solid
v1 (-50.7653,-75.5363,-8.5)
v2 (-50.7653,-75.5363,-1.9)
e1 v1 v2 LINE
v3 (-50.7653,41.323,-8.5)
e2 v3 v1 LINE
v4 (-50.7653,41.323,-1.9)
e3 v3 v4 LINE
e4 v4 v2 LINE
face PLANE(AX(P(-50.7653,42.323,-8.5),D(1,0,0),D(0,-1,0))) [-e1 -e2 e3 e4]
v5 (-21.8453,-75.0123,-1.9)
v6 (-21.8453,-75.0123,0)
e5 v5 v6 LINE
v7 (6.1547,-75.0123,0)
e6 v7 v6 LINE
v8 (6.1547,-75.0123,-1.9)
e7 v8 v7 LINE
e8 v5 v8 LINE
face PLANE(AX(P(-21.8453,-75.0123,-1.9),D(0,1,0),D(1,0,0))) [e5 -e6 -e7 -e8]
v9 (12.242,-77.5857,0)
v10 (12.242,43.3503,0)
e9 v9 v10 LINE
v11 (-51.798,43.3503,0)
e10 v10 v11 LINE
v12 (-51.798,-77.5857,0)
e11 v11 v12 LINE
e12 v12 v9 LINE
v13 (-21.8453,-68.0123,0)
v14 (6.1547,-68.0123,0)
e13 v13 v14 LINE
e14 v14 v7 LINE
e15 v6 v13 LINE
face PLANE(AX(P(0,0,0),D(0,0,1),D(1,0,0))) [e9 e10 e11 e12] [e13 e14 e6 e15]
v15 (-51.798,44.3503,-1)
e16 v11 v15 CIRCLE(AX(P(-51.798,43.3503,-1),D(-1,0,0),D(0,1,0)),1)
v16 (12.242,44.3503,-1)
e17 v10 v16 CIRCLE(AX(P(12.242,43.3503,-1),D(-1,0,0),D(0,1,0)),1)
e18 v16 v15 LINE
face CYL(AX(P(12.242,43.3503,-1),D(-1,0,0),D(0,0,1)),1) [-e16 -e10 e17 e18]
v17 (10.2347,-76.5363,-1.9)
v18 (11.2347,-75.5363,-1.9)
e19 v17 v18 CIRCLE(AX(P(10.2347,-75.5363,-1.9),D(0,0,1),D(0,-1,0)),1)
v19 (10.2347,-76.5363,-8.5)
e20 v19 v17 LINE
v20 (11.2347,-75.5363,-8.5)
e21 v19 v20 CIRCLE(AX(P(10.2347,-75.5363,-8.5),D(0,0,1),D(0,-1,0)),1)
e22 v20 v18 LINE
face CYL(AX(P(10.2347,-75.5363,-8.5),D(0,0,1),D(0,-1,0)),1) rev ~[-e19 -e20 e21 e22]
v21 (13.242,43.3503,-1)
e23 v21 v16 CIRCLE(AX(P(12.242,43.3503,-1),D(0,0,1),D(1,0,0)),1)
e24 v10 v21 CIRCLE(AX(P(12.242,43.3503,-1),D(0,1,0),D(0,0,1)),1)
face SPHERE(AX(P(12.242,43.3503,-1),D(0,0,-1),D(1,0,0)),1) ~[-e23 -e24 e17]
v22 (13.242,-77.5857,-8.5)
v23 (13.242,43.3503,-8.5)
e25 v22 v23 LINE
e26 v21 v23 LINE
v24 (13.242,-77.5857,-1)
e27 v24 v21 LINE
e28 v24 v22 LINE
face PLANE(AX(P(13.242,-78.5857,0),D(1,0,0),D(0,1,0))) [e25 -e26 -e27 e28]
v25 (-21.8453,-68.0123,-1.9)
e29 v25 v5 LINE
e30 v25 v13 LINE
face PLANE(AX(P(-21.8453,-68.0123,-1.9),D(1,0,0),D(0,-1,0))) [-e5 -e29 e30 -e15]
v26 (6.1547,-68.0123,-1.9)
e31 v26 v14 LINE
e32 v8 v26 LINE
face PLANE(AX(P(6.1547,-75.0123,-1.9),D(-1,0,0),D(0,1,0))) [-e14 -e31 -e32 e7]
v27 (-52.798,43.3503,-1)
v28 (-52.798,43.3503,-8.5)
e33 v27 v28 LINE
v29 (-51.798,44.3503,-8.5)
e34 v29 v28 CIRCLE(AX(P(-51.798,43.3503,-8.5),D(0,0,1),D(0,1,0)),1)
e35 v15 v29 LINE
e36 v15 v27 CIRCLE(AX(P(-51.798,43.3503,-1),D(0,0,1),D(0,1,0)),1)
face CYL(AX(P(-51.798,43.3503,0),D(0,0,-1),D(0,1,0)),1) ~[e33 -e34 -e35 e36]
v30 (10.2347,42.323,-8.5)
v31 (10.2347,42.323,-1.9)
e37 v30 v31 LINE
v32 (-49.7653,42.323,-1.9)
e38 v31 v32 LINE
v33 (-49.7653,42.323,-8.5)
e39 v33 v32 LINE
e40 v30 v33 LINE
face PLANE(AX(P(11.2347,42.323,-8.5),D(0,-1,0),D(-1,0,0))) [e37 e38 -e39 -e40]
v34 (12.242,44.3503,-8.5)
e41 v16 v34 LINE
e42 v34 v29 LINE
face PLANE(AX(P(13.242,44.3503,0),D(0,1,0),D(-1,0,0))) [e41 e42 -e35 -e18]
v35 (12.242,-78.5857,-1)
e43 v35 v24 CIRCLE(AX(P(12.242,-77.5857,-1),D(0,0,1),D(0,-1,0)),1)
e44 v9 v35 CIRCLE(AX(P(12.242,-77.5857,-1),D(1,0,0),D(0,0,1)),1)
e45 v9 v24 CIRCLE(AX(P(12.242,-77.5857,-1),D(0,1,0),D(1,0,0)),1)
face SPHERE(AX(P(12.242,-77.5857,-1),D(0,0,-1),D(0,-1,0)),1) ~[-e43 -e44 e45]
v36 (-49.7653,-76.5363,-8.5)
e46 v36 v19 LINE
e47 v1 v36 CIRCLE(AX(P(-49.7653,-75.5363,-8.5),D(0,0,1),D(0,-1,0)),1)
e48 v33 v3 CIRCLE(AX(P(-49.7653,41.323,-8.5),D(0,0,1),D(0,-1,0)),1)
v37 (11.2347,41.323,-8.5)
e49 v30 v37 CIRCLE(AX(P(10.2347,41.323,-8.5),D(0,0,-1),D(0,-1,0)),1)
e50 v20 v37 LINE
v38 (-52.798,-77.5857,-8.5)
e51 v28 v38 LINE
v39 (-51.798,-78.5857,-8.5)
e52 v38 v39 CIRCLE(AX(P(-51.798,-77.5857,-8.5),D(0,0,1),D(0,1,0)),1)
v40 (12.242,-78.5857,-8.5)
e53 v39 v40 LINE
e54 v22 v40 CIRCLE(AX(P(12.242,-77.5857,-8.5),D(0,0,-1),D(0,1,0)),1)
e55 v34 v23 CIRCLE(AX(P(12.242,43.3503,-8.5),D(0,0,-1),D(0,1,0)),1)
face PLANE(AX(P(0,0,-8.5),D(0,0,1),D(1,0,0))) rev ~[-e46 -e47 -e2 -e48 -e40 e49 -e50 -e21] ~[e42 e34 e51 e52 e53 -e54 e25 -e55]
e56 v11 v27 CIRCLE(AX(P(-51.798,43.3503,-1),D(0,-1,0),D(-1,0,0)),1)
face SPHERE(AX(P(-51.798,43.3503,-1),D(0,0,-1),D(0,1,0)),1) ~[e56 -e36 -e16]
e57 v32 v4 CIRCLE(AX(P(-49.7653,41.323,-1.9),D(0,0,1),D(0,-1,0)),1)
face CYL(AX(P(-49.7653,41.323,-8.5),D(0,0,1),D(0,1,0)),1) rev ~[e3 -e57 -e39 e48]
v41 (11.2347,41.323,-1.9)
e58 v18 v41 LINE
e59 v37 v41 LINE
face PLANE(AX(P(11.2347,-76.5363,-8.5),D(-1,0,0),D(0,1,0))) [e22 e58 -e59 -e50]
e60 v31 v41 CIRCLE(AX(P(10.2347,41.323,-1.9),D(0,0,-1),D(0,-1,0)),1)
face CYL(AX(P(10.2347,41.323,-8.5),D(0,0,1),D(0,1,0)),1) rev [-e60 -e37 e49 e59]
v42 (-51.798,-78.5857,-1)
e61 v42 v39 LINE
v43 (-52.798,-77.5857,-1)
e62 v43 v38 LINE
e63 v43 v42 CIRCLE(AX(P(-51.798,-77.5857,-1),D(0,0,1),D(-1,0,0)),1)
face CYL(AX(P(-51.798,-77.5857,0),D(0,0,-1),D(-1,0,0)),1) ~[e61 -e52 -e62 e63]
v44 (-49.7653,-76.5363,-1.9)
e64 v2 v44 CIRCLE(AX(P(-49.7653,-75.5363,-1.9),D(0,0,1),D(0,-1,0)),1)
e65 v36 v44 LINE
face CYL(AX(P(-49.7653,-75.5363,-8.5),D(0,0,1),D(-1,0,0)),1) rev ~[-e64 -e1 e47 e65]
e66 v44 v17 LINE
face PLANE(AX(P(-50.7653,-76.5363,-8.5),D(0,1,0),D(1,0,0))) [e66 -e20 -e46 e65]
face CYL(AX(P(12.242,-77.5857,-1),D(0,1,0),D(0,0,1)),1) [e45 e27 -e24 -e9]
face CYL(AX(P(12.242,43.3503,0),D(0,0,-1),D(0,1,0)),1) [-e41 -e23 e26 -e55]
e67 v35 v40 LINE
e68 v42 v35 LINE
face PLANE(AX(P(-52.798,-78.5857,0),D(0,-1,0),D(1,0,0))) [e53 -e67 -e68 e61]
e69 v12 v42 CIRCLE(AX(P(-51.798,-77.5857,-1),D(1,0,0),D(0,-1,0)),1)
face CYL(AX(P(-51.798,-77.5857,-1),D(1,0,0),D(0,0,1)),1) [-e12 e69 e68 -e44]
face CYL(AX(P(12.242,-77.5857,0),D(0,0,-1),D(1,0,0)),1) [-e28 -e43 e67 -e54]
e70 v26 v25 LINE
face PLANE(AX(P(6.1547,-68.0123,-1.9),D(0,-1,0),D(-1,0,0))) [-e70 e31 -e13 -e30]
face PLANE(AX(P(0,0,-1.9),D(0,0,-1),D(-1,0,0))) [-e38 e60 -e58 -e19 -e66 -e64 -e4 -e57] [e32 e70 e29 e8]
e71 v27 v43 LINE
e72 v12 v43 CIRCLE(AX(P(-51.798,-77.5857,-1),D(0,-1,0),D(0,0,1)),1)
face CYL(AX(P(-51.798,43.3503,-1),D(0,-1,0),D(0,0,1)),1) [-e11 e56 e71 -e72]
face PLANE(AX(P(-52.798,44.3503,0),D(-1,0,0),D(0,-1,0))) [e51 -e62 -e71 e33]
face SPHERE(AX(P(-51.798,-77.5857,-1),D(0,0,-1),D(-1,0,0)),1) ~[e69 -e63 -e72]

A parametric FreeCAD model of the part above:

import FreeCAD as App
import Part
import Sketcher
Q = App.Units.Quantity


def edges_at(feature, points):
    """Names of the edges that pass closest to the given points."""
    edges = feature.Shape.Edges
    near = lambda p: min(range(len(edges)), key=lambda i: edges[i].distToShape(Part.Vertex(*p))[0])
    return sorted({f"Edge{near(p) + 1}" for p in points})

doc = App.newDocument("Part")
body = doc.addObject("PartDesign::Body", "Body")

sketch1 = body.newObject("Sketcher::SketchObject", "Sketch")
sketch1.AttachmentSupport = (doc.getObject("XY_Plane"), [""])
sketch1.MapMode = "FlatFace"
sketch1.addGeometry(Part.LineSegment(App.Vector(13, 44, 0), App.Vector(-53, 44, 0)), False)
sketch1.addGeometry(Part.LineSegment(App.Vector(-53, 44, 0), App.Vector(-53, -79, 0)), False)
sketch1.addGeometry(Part.LineSegment(App.Vector(-53, -79, 0), App.Vector(13, -79, 0)), False)
sketch1.addGeometry(Part.LineSegment(App.Vector(13, -79, 0), App.Vector(13, 44, 0)), False)
sketch1.addConstraint(Sketcher.Constraint("Coincident", 0, 2, 1, 1))
sketch1.addConstraint(Sketcher.Constraint("Coincident", 1, 2, 2, 1))
sketch1.addConstraint(Sketcher.Constraint("Coincident", 2, 2, 3, 1))
sketch1.addConstraint(Sketcher.Constraint("Coincident", 3, 2, 0, 1))
sketch1.addConstraint(Sketcher.Constraint("Horizontal", 0))
sketch1.addConstraint(Sketcher.Constraint("Vertical", 1))
sketch1.addConstraint(Sketcher.Constraint("Horizontal", 2))
sketch1.addConstraint(Sketcher.Constraint("Vertical", 3))
sketch1.addConstraint(Sketcher.Constraint("DistanceX", 0, 2, 0, 1, Q("66.04 mm")))
sketch1.addConstraint(Sketcher.Constraint("DistanceY", 1, 2, 1, 1, Q("122.936 mm")))
sketch1.addConstraint(Sketcher.Constraint("DistanceX", 0, 2, -1, 1, Q("52.798 mm")))
sketch1.addConstraint(Sketcher.Constraint("DistanceY", -1, 1, 0, 2, Q("44.3503 mm")))
pad1 = body.newObject("PartDesign::Pad", "Pad")
pad1.Profile = sketch1
pad1.Length = 8.5
pad1.Reversed = True

sketch2 = body.newObject("Sketcher::SketchObject", "Sketch001")
sketch2.AttachmentSupport = (doc.getObject("XY_Plane"), [""])
sketch2.MapMode = "FlatFace"
sketch2.AttachmentOffset = App.Placement(App.Vector(0, 0, -8.5), App.Rotation())
sketch2.addGeometry(Part.LineSegment(App.Vector(-51, 42, 0), App.Vector(11, 42, 0)), False)
sketch2.addGeometry(Part.LineSegment(App.Vector(11, 42, 0), App.Vector(11, -77, 0)), False)
sketch2.addGeometry(Part.LineSegment(App.Vector(11, -77, 0), App.Vector(-51, -77, 0)), False)
sketch2.addGeometry(Part.LineSegment(App.Vector(-51, -77, 0), App.Vector(-51, 42, 0)), False)
sketch2.addConstraint(Sketcher.Constraint("Coincident", 0, 2, 1, 1))
sketch2.addConstraint(Sketcher.Constraint("Coincident", 1, 2, 2, 1))
sketch2.addConstraint(Sketcher.Constraint("Coincident", 2, 2, 3, 1))
sketch2.addConstraint(Sketcher.Constraint("Coincident", 3, 2, 0, 1))
sketch2.addConstraint(Sketcher.Constraint("Horizontal", 0))
sketch2.addConstraint(Sketcher.Constraint("Vertical", 1))
sketch2.addConstraint(Sketcher.Constraint("Horizontal", 2))
sketch2.addConstraint(Sketcher.Constraint("Vertical", 3))
sketch2.addConstraint(Sketcher.Constraint("DistanceX", 0, 1, 0, 2, Q("62 mm")))
sketch2.addConstraint(Sketcher.Constraint("DistanceY", 1, 2, 1, 1, Q("118.8593 mm")))
sketch2.addConstraint(Sketcher.Constraint("DistanceY", -1, 1, 0, 2, Q("42.323 mm")))
sketch2.addConstraint(Sketcher.Constraint("DistanceX", -1, 1, 0, 2, Q("11.2347 mm")))
pocket1 = body.newObject("PartDesign::Pocket", "Pocket")
pocket1.Profile = sketch2
pocket1.Length = 6.6
pocket1.Reversed = True

sketch3 = body.newObject("Sketcher::SketchObject", "Sketch002")
sketch3.AttachmentSupport = (doc.getObject("XY_Plane"), [""])
sketch3.MapMode = "FlatFace"
sketch3.AttachmentOffset = App.Placement(App.Vector(0, 0, -1.9), App.Rotation())
sketch3.addGeometry(Part.LineSegment(App.Vector(-22, -68, 0), App.Vector(6, -68, 0)), False)
sketch3.addGeometry(Part.LineSegment(App.Vector(6, -68, 0), App.Vector(6, -75, 0)), False)
sketch3.addGeometry(Part.LineSegment(App.Vector(6, -75, 0), App.Vector(-22, -75, 0)), False)
sketch3.addGeometry(Part.LineSegment(App.Vector(-22, -75, 0), App.Vector(-22, -68, 0)), False)
sketch3.addConstraint(Sketcher.Constraint("Coincident", 0, 2, 1, 1))
sketch3.addConstraint(Sketcher.Constraint("Coincident", 1, 2, 2, 1))
sketch3.addConstraint(Sketcher.Constraint("Coincident", 2, 2, 3, 1))
sketch3.addConstraint(Sketcher.Constraint("Coincident", 3, 2, 0, 1))
sketch3.addConstraint(Sketcher.Constraint("Horizontal", 0))
sketch3.addConstraint(Sketcher.Constraint("Vertical", 1))
sketch3.addConstraint(Sketcher.Constraint("Horizontal", 2))
sketch3.addConstraint(Sketcher.Constraint("Vertical", 3))
sketch3.addConstraint(Sketcher.Constraint("DistanceX", 0, 1, 0, 2, Q("28 mm")))
sketch3.addConstraint(Sketcher.Constraint("DistanceY", 1, 2, 1, 1, Q("7 mm")))
sketch3.addConstraint(Sketcher.Constraint("DistanceX", -1, 1, 0, 2, Q("6.1547 mm")))
sketch3.addConstraint(Sketcher.Constraint("DistanceY", 0, 2, -1, 1, Q("68.0123 mm")))
pocket2 = body.newObject("PartDesign::Pocket", "Pocket001")
pocket2.Profile = sketch3
pocket2.Length = 2.76
pocket2.Reversed = True
doc.recompute()

fillet = body.newObject("PartDesign::Fillet", "Fillet")
fillet.Base = (pocket2, edges_at(pocket2, [
    (11.235, 42.323, -5.2),
    (13.242, 44.35, -4.25),
    (-52.798, -78.586, -4.25),
    (-50.765, -76.536, -5.2),
    (-50.765, 42.323, -5.2),
    (-52.798, 44.35, -4.25),
    (13.242, -78.586, -4.25),
    (11.235, -76.536, -5.2),
]))
fillet.Radius = 1
doc.recompute()

fillet2 = body.newObject("PartDesign::Fillet", "Fillet001")
fillet2.Base = (fillet, edges_at(fillet, [
    (-52.505, 44.057, 0),
    (-52.798, -17.118, 0),
    (-52.505, -78.293, 0),
    (-19.778, -78.586, 0),
    (12.949, -78.293, 0),
    (13.242, -17.118, 0),
    (12.949, 44.057, 0),
    (-19.778, 44.35, 0),
]))
fillet2.Radius = 1

doc.recompute()
